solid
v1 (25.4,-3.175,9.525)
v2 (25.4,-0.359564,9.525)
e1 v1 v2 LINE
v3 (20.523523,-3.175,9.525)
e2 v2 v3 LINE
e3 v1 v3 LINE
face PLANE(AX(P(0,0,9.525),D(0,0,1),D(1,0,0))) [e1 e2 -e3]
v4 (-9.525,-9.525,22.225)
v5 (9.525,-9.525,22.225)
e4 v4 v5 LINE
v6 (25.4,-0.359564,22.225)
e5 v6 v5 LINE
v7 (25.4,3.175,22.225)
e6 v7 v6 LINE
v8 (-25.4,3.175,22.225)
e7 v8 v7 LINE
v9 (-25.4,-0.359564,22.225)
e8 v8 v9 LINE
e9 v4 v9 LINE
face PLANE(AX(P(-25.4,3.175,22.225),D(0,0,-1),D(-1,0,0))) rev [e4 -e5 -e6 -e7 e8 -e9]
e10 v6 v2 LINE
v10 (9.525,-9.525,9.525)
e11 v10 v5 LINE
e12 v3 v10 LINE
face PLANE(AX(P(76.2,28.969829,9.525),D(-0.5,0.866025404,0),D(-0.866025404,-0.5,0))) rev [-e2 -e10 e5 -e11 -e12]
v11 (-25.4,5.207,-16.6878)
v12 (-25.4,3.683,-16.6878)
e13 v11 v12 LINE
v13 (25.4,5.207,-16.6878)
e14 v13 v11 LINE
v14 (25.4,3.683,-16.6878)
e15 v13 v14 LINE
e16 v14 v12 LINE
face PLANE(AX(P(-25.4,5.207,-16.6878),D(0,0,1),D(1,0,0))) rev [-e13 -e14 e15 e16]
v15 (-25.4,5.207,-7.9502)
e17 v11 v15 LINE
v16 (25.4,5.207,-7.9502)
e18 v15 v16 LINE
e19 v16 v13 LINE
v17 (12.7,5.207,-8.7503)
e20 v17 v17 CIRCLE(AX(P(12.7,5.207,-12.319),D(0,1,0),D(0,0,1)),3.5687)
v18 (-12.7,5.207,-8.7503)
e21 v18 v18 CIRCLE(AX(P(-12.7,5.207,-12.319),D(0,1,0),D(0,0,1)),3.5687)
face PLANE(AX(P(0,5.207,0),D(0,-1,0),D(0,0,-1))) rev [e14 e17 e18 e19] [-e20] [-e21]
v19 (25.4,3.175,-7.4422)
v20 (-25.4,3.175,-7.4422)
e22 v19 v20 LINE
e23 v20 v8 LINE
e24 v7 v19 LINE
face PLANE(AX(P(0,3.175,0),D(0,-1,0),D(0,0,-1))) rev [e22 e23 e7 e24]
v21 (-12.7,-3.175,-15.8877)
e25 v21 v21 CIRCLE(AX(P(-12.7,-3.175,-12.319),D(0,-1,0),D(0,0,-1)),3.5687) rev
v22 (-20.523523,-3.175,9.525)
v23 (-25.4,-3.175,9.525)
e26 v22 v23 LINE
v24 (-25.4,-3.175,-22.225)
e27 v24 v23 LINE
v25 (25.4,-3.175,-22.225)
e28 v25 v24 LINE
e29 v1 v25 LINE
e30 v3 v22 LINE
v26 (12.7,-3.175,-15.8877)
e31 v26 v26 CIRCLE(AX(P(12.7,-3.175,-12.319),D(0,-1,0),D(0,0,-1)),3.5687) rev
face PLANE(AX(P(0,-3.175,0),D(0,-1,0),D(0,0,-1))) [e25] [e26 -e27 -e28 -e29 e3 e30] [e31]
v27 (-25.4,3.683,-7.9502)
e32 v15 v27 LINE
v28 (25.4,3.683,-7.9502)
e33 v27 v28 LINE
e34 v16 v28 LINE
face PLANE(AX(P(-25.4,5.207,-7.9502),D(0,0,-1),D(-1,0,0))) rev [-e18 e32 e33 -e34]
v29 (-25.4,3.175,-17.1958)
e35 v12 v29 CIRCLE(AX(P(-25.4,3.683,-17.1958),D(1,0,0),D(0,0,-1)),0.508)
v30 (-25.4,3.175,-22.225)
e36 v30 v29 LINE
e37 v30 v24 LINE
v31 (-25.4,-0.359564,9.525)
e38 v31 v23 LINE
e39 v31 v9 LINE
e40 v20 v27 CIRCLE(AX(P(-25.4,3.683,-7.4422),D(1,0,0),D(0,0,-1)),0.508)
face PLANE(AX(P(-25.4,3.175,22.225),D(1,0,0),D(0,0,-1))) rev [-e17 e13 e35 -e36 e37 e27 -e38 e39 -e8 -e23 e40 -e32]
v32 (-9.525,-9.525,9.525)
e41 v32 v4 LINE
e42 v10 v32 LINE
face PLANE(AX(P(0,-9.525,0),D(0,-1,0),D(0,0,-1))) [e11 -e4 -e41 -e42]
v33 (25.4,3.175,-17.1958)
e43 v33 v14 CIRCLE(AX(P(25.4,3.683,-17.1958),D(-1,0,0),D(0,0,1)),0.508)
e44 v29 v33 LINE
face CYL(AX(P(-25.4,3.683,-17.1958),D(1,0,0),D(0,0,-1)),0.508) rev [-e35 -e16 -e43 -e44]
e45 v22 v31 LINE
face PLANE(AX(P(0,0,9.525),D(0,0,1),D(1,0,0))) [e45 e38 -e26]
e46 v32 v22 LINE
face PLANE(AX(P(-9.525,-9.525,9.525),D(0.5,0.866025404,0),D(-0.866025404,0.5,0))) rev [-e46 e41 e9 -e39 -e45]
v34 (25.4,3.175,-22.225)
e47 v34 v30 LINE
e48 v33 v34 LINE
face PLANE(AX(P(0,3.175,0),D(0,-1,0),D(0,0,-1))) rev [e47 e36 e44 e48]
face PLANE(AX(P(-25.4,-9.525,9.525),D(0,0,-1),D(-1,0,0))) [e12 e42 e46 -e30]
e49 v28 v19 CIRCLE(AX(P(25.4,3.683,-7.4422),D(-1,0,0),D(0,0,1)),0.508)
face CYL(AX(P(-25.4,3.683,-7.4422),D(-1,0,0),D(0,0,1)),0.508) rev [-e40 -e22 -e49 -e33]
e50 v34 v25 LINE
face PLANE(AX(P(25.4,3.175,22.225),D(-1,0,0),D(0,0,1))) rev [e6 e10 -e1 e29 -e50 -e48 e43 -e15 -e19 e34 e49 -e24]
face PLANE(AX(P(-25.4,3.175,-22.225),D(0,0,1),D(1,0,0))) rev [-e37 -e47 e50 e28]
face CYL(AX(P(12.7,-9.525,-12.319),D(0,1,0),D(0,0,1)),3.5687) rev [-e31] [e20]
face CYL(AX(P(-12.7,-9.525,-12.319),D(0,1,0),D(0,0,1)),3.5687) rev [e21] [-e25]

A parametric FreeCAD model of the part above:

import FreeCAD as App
import Part
import Sketcher
from FreeCAD import Vector
Q = App.Units.Quantity


def edges_at(feature, points):
    """Names of the edges that pass closest to the given points."""
    edges = feature.Shape.Edges
    near = lambda p: min(range(len(edges)), key=lambda i: edges[i].distToShape(Part.Vertex(*p))[0])
    return sorted({f"Edge{near(p) + 1}" for p in points})


def add_polygon(sketch, points):
    """Adds a closed chain of lines whose ends are joined by coincident constraints."""
    first, n = sketch.GeometryCount, len(points)
    for a, b in zip(points, points[1:] + points[:1]):
        sketch.addGeometry(Part.LineSegment(App.Vector(*a, 0), App.Vector(*b, 0)), False)
    for i in range(n):
        sketch.addConstraint(Sketcher.Constraint("Coincident", first + i, 2, first + (i + 1) % n, 1))

doc = App.newDocument("Part")
params = doc.addObject("Spreadsheet::Sheet", "Params")
for row, (alias, value) in enumerate([
    ("sketch1_width", "2 in"),
    ("sketch1_height", "1.75 in"),
    ("pad1_length", "0.25 in"),
    ("sketch2_width", "2 in"),
    ("sketch2_height", "0.5 in"),
    ("pad2_length", "0.25 in"),
    ("sketch3_width", "2 in"),
    ("sketch3_height", "0.344 in"),
    ("pad3_length", "0.08 in"),
    ("sketch4_height", "0.5 in"),
    ("sketch4_width", "2.625 in"),
    ("pocket1_length", "0.5 in"),
    ("sketch5_height", "0.5 in"),
    ("sketch5_width", "2.625 in"),
    ("pocket2_length", "0.5 in"),
    ("sketch6_diameter", "0.281 in"),
    ("pocket3_length", "0.375 in"),
    ("fillet_radius", "0.02 in"),
], start=1):
    params.set(f"A{row}", alias)
    params.set(f"B{row}", "=" + value)
    params.setAlias(f"B{row}", alias)

body = doc.addObject("PartDesign::Body", "Body")

# Sketch on XZ plane
sketch1 = body.newObject("Sketcher::SketchObject", "Sketch")
sketch1.AttachmentSupport = (doc.getObject("XZ_Plane"), [""])
sketch1.MapMode = "FlatFace"
add_polygon(sketch1, [(-25.4, -22.225), (-25.4, 22.225), (25.4, 22.225), (25.4, -22.225)])  # lines 0-3
sketch1.addConstraint([
    Sketcher.Constraint("Vertical", 0),
    Sketcher.Constraint("Horizontal", 1),
    Sketcher.Constraint("Vertical", 2),
    Sketcher.Constraint("Horizontal", 3),
    Sketcher.Constraint("Symmetric", 0, 2, 2, 2, -1, 1),
    Sketcher.Constraint("DistanceX", 1, 1, 1, 2, Q("2 in")),
    Sketcher.Constraint("DistanceY", 0, 1, 0, 2, Q("1.75 in")),
])
sketch1.setExpression("Constraints[9]", "Params.sketch1_width")
sketch1.setExpression("Constraints[10]", "Params.sketch1_height")
pad1 = body.newObject("PartDesign::Pad", "Pad")
pad1.Profile = sketch1
pad1.setExpression("Length", "Params.pad1_length")
pad1.Midplane = True

# Sketch on XZ plane
sketch2 = body.newObject("Sketcher::SketchObject", "Sketch001")
sketch2.AttachmentSupport = (doc.getObject("XZ_Plane"), [""])
sketch2.MapMode = "FlatFace"
sketch2.AttachmentOffset = App.Placement(Vector(0, 0, 0.125 * 25.4), App.Rotation())
add_polygon(sketch2, [(-25.4, 9.525), (-25.4, 22.225), (25.4, 22.225), (25.4, 9.525)])  # lines 0-3
sketch2.addConstraint([
    Sketcher.Constraint("Vertical", 0),
    Sketcher.Constraint("Horizontal", 1),
    Sketcher.Constraint("Vertical", 2),
    Sketcher.Constraint("Horizontal", 3),
    Sketcher.Constraint("DistanceX", 1, 1, 1, 2, Q("2 in")),
    Sketcher.Constraint("DistanceY", 0, 1, 0, 2, Q("0.5 in")),
    Sketcher.Constraint("DistanceX", 0, 2, -1, 1, Q("1 in")),
    Sketcher.Constraint("DistanceY", -1, 1, 0, 2, Q("0.875 in")),
])
sketch2.setExpression("Constraints[8]", "Params.sketch2_width")
sketch2.setExpression("Constraints[9]", "Params.sketch2_height")
pad2 = body.newObject("PartDesign::Pad", "Pad001")
pad2.Profile = sketch2
pad2.setExpression("Length", "Params.pad2_length")

# Sketch on XZ plane
sketch3 = body.newObject("Sketcher::SketchObject", "Sketch002")
sketch3.AttachmentSupport = (doc.getObject("XZ_Plane"), [""])
sketch3.MapMode = "FlatFace"
sketch3.AttachmentOffset = App.Placement(Vector(0, 0, -0.125 * 25.4), App.Rotation())
add_polygon(sketch3, [(-25.4, -16.6878), (-25.4, -7.9502), (25.4, -7.9502), (25.4, -16.6878)])  # lines 0-3
sketch3.addConstraint([
    Sketcher.Constraint("Vertical", 0),
    Sketcher.Constraint("Horizontal", 1),
    Sketcher.Constraint("Vertical", 2),
    Sketcher.Constraint("Horizontal", 3),
    Sketcher.Constraint("DistanceX", 1, 1, 1, 2, Q("2 in")),
    Sketcher.Constraint("DistanceX", 0, 2, -1, 1, Q("1 in")),
    Sketcher.Constraint("DistanceY", 0, 1, 0, 2, Q("0.344 in")),
    Sketcher.Constraint("DistanceY", 0, 2, -1, 1, Q("0.313 in")),
])
sketch3.setExpression("Constraints[8]", "Params.sketch3_width")
sketch3.setExpression("Constraints[10]", "Params.sketch3_height")
pad3 = body.newObject("PartDesign::Pad", "Pad002")
pad3.Profile = sketch3
pad3.setExpression("Length", "Params.pad3_length")
pad3.Reversed = True

# Sketch on XY plane
sketch4 = body.newObject("Sketcher::SketchObject", "Sketch003")
sketch4.AttachmentSupport = (doc.getObject("XY_Plane"), [""])
sketch4.MapMode = "FlatFace"
sketch4.AttachmentOffset = App.Placement(Vector(0, 0, 0.875 * 25.4), App.Rotation())
add_polygon(sketch4, [(-76.2, -22.225), (-9.525, -22.225), (-9.525, -9.525), (-76.2, 28.969829)])  # lines 0-3
sketch4.addConstraint([
    Sketcher.Constraint("Horizontal", 0),
    Sketcher.Constraint("Vertical", 1),
    Sketcher.Constraint("Vertical", 3),
    Sketcher.Constraint("DistanceY", 1, 1, 1, 2, Q("0.5 in")),
    Sketcher.Constraint("DistanceX", 2, 2, -1, 1, Q("3 in")),
    Sketcher.Constraint("Angle", 2, Q("150 deg")),
    Sketcher.Constraint("DistanceX", 0, 1, 0, 2, Q("2.625 in")),
    Sketcher.Constraint("DistanceY", 0, 2, -1, 1, Q("0.875 in")),
])
sketch4.setExpression("Constraints[7]", "Params.sketch4_height")
sketch4.setExpression("Constraints[10]", "Params.sketch4_width")
pocket1 = body.newObject("PartDesign::Pocket", "Pocket")
pocket1.Profile = sketch4
pocket1.setExpression("Length", "Params.pocket1_length")

# Sketch on XY plane
sketch5 = body.newObject("Sketcher::SketchObject", "Sketch004")
sketch5.AttachmentSupport = (doc.getObject("XY_Plane"), [""])
sketch5.MapMode = "FlatFace"
sketch5.AttachmentOffset = App.Placement(Vector(0, 0, 0.875 * 25.4), App.Rotation())
add_polygon(sketch5, [(9.525, -22.225), (76.2, -22.225), (76.2, 28.969829), (9.525, -9.525)])  # lines 0-3
sketch5.addConstraint([
    Sketcher.Constraint("Horizontal", 0),
    Sketcher.Constraint("Vertical", 1),
    Sketcher.Constraint("Vertical", 3),
    Sketcher.Constraint("DistanceY", 3, 2, 3, 1, Q("0.5 in")),
    Sketcher.Constraint("DistanceX", -1, 1, 0, 2, Q("3 in")),
    Sketcher.Constraint("Angle", 2, Q("-150 deg")),
    Sketcher.Constraint("DistanceX", 0, 1, 0, 2, Q("2.625 in")),
    Sketcher.Constraint("DistanceY", 0, 2, -1, 1, Q("0.875 in")),
])
sketch5.setExpression("Constraints[7]", "Params.sketch5_height")
sketch5.setExpression("Constraints[10]", "Params.sketch5_width")
pocket2 = body.newObject("PartDesign::Pocket", "Pocket001")
pocket2.Profile = sketch5
pocket2.setExpression("Length", "Params.pocket2_length")

# Sketch on XZ plane
sketch6 = body.newObject("Sketcher::SketchObject", "Sketch005")
sketch6.AttachmentSupport = (doc.getObject("XZ_Plane"), [""])
sketch6.MapMode = "FlatFace"
sketch6.AttachmentOffset = App.Placement(Vector(0, 0, -0.205 * 25.4), App.Rotation())
sketch6.addGeometry([
    Part.Circle(Vector(-12.7, -12.319, 0), Vector(0, 0, 1), 3.5687),
    Part.Circle(Vector(12.7, -12.319, 0), Vector(0, 0, 1), 3.5687),
], False)
sketch6.addConstraint([
    Sketcher.Constraint("Equal", 0, 1),
    Sketcher.Constraint("Symmetric", 0, 3, 1, 3, -2),
    Sketcher.Constraint("Diameter", 0, Q("0.281 in")),
    Sketcher.Constraint("DistanceX", 0, 3, 1, 3, Q("1 in")),
    Sketcher.Constraint("DistanceY", 0, 3, -1, 1, Q("0.485 in")),
])
sketch6.setExpression("Constraints[2]", "Params.sketch6_diameter")
pocket3 = body.newObject("PartDesign::Pocket", "Pocket002")
pocket3.Profile = sketch6
pocket3.setExpression("Length", "Params.pocket3_length")
pocket3.Reversed = True
doc.recompute()

fillet = body.newObject("PartDesign::Fillet", "Fillet")
fillet.Base = (pocket3, edges_at(pocket3, [(0, 3.175, -7.95), (0, 3.175, -16.688)]))
fillet.setExpression("Radius", "Params.fillet_radius")

doc.recompute()
